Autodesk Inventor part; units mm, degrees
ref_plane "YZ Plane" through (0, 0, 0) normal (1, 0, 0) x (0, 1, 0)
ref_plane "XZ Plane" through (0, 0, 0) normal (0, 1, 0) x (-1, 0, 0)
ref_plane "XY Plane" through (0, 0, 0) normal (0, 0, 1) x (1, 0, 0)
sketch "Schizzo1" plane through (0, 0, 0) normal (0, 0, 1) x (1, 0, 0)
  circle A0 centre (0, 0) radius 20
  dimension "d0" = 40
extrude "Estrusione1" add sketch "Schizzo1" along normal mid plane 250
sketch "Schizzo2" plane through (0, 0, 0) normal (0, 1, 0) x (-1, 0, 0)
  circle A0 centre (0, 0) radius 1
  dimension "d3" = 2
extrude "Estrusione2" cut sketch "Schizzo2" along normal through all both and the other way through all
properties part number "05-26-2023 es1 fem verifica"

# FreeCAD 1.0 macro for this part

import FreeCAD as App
import Part
import Sketcher
from FreeCAD import Vector
Q = App.Units.Quantity

doc = App.newDocument("Part")
body = doc.addObject("PartDesign::Body", "Body")

# Sketch on XY plane
sketch1 = body.newObject("Sketcher::SketchObject", "Sketch")
sketch1.AttachmentSupport = (doc.getObject("XY_Plane"), [""])
sketch1.MapMode = "FlatFace"
sketch1.addGeometry(Part.Circle(Vector(0, 0, 0), Vector(0, 0, 1), 20), False)
sketch1.addConstraint(Sketcher.Constraint("Coincident", 0, 3, -1, 1))
sketch1.addConstraint(Sketcher.Constraint("Diameter", 0, Q("40 mm")))
pad1 = body.newObject("PartDesign::Pad", "Pad")
pad1.Profile = sketch1
pad1.Length = 250
pad1.Midplane = True

# Sketch on XZ plane
sketch2 = body.newObject("Sketcher::SketchObject", "Sketch001")
sketch2.AttachmentSupport = (doc.getObject("XZ_Plane"), [""])
sketch2.MapMode = "FlatFace"
sketch2.addGeometry(Part.Circle(Vector(0, 0, 0), Vector(0, 0, 1), 1), False)
sketch2.addConstraint(Sketcher.Constraint("Coincident", 0, 3, -1, 1))
sketch2.addConstraint(Sketcher.Constraint("Diameter", 0, Q("2 mm")))
pocket1 = body.newObject("PartDesign::Pocket", "Pocket")
pocket1.Profile = sketch2
pocket1.Type = "ThroughAll"
pocket1.Midplane = True

doc.recompute()
